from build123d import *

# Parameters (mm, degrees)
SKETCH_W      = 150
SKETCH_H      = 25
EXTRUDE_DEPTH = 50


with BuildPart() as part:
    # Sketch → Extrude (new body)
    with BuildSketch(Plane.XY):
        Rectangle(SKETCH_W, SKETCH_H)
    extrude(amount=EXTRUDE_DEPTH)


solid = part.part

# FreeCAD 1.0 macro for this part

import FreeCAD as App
import Part
import Sketcher

V = App.Vector
Q = App.Units.Quantity

doc = App.newDocument("Part")
body = doc.addObject("PartDesign::Body", "Body")

# Sketch on XY plane
sketch1 = body.newObject("Sketcher::SketchObject", "Sketch")
sketch1.AttachmentSupport = (doc.getObject("XY_Plane"), [""])
sketch1.MapMode = "FlatFace"
sketch1.addGeometry(Part.LineSegment(V(-75, 12, 0), V(-75, -12, 0)), False)
sketch1.addGeometry(Part.LineSegment(V(-75, -12, 0), V(75, -12, 0)), False)
sketch1.addGeometry(Part.LineSegment(V(75, -12, 0), V(75, 12, 0)), False)
sketch1.addGeometry(Part.LineSegment(V(75, 12, 0), V(-75, 12, 0)), False)
sketch1.addConstraint(Sketcher.Constraint("Coincident", 0, 2, 1, 1))
sketch1.addConstraint(Sketcher.Constraint("Coincident", 1, 2, 2, 1))
sketch1.addConstraint(Sketcher.Constraint("Coincident", 2, 2, 3, 1))
sketch1.addConstraint(Sketcher.Constraint("Coincident", 3, 2, 0, 1))
sketch1.addConstraint(Sketcher.Constraint("Vertical", 0))
sketch1.addConstraint(Sketcher.Constraint("Horizontal", 1))
sketch1.addConstraint(Sketcher.Constraint("Vertical", 2))
sketch1.addConstraint(Sketcher.Constraint("Horizontal", 3))
sketch1.addConstraint(Sketcher.Constraint("Symmetric", 0, 2, 2, 2, -1, 1))
sketch1.addConstraint(Sketcher.Constraint("DistanceX", 1, 1, 1, 2, Q("150 mm")))
sketch1.addConstraint(Sketcher.Constraint("DistanceY", 0, 2, 0, 1, Q("25 mm")))
pad1 = body.newObject("PartDesign::Pad", "Pad")
pad1.Profile = sketch1
pad1.Length = 50

doc.recompute()
